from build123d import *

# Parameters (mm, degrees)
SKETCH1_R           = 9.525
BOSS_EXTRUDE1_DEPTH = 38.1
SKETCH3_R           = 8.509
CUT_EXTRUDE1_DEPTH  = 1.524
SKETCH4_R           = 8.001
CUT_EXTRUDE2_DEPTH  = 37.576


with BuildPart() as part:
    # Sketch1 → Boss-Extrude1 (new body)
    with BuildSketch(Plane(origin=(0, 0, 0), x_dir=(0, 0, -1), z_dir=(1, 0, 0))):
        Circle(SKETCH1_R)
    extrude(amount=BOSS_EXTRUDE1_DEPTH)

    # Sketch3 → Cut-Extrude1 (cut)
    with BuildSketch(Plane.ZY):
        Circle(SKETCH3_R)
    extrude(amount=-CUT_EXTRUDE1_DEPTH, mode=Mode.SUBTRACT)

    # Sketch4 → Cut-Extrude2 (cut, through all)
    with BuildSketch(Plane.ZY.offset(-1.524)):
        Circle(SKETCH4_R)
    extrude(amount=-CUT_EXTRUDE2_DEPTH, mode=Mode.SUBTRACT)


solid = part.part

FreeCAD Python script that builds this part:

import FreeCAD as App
import Part
import Sketcher
Q = App.Units.Quantity

doc = App.newDocument("Part")
body = doc.addObject("PartDesign::Body", "Body")

sketch1 = body.newObject("Sketcher::SketchObject", "Sketch")
sketch1.AttachmentSupport = (doc.getObject("YZ_Plane"), [""])
sketch1.MapMode = "FlatFace"
sketch1.addGeometry(Part.Circle(App.Vector(0, 0, 0), App.Vector(0, 0, 1), 10), False)
sketch1.addConstraint([
    Sketcher.Constraint("Coincident", 0, 3, -1, 1),
    Sketcher.Constraint("Diameter", 0, Q("0.75 in")),
])
pad1 = body.newObject("PartDesign::Pad", "Pad")
pad1.Profile = sketch1
pad1.Length = Q("1.5 in")

sketch2 = body.newObject("Sketcher::SketchObject", "Sketch001")
sketch2.AttachmentSupport = (doc.getObject("YZ_Plane"), [""])
sketch2.MapMode = "FlatFace"
sketch2.addGeometry(Part.Circle(App.Vector(0, 0, 0), App.Vector(0, 0, 1), 9), False)
sketch2.addConstraint([
    Sketcher.Constraint("Coincident", 0, 3, -1, 1),
    Sketcher.Constraint("Diameter", 0, Q("0.67 in")),
])
pocket1 = body.newObject("PartDesign::Pocket", "Pocket")
pocket1.Profile = sketch2
pocket1.Length = Q("0.06 in")
pocket1.Reversed = True

sketch3 = body.newObject("Sketcher::SketchObject", "Sketch002")
sketch3.AttachmentSupport = (doc.getObject("YZ_Plane"), [""])
sketch3.MapMode = "FlatFace"
sketch3.AttachmentOffset = App.Placement(App.Vector(0, 0, 0.06 * 25.4), App.Rotation())
sketch3.addGeometry(Part.Circle(App.Vector(0, 0, 0), App.Vector(0, 0, 1), 8), False)
sketch3.addConstraint([
    Sketcher.Constraint("Coincident", 0, 3, -1, 1),
    Sketcher.Constraint("Diameter", 0, Q("0.63 in")),
])
pocket2 = body.newObject("PartDesign::Pocket", "Pocket001")
pocket2.Profile = sketch3
pocket2.Type = "ThroughAll"
pocket2.Reversed = True

doc.recompute()
